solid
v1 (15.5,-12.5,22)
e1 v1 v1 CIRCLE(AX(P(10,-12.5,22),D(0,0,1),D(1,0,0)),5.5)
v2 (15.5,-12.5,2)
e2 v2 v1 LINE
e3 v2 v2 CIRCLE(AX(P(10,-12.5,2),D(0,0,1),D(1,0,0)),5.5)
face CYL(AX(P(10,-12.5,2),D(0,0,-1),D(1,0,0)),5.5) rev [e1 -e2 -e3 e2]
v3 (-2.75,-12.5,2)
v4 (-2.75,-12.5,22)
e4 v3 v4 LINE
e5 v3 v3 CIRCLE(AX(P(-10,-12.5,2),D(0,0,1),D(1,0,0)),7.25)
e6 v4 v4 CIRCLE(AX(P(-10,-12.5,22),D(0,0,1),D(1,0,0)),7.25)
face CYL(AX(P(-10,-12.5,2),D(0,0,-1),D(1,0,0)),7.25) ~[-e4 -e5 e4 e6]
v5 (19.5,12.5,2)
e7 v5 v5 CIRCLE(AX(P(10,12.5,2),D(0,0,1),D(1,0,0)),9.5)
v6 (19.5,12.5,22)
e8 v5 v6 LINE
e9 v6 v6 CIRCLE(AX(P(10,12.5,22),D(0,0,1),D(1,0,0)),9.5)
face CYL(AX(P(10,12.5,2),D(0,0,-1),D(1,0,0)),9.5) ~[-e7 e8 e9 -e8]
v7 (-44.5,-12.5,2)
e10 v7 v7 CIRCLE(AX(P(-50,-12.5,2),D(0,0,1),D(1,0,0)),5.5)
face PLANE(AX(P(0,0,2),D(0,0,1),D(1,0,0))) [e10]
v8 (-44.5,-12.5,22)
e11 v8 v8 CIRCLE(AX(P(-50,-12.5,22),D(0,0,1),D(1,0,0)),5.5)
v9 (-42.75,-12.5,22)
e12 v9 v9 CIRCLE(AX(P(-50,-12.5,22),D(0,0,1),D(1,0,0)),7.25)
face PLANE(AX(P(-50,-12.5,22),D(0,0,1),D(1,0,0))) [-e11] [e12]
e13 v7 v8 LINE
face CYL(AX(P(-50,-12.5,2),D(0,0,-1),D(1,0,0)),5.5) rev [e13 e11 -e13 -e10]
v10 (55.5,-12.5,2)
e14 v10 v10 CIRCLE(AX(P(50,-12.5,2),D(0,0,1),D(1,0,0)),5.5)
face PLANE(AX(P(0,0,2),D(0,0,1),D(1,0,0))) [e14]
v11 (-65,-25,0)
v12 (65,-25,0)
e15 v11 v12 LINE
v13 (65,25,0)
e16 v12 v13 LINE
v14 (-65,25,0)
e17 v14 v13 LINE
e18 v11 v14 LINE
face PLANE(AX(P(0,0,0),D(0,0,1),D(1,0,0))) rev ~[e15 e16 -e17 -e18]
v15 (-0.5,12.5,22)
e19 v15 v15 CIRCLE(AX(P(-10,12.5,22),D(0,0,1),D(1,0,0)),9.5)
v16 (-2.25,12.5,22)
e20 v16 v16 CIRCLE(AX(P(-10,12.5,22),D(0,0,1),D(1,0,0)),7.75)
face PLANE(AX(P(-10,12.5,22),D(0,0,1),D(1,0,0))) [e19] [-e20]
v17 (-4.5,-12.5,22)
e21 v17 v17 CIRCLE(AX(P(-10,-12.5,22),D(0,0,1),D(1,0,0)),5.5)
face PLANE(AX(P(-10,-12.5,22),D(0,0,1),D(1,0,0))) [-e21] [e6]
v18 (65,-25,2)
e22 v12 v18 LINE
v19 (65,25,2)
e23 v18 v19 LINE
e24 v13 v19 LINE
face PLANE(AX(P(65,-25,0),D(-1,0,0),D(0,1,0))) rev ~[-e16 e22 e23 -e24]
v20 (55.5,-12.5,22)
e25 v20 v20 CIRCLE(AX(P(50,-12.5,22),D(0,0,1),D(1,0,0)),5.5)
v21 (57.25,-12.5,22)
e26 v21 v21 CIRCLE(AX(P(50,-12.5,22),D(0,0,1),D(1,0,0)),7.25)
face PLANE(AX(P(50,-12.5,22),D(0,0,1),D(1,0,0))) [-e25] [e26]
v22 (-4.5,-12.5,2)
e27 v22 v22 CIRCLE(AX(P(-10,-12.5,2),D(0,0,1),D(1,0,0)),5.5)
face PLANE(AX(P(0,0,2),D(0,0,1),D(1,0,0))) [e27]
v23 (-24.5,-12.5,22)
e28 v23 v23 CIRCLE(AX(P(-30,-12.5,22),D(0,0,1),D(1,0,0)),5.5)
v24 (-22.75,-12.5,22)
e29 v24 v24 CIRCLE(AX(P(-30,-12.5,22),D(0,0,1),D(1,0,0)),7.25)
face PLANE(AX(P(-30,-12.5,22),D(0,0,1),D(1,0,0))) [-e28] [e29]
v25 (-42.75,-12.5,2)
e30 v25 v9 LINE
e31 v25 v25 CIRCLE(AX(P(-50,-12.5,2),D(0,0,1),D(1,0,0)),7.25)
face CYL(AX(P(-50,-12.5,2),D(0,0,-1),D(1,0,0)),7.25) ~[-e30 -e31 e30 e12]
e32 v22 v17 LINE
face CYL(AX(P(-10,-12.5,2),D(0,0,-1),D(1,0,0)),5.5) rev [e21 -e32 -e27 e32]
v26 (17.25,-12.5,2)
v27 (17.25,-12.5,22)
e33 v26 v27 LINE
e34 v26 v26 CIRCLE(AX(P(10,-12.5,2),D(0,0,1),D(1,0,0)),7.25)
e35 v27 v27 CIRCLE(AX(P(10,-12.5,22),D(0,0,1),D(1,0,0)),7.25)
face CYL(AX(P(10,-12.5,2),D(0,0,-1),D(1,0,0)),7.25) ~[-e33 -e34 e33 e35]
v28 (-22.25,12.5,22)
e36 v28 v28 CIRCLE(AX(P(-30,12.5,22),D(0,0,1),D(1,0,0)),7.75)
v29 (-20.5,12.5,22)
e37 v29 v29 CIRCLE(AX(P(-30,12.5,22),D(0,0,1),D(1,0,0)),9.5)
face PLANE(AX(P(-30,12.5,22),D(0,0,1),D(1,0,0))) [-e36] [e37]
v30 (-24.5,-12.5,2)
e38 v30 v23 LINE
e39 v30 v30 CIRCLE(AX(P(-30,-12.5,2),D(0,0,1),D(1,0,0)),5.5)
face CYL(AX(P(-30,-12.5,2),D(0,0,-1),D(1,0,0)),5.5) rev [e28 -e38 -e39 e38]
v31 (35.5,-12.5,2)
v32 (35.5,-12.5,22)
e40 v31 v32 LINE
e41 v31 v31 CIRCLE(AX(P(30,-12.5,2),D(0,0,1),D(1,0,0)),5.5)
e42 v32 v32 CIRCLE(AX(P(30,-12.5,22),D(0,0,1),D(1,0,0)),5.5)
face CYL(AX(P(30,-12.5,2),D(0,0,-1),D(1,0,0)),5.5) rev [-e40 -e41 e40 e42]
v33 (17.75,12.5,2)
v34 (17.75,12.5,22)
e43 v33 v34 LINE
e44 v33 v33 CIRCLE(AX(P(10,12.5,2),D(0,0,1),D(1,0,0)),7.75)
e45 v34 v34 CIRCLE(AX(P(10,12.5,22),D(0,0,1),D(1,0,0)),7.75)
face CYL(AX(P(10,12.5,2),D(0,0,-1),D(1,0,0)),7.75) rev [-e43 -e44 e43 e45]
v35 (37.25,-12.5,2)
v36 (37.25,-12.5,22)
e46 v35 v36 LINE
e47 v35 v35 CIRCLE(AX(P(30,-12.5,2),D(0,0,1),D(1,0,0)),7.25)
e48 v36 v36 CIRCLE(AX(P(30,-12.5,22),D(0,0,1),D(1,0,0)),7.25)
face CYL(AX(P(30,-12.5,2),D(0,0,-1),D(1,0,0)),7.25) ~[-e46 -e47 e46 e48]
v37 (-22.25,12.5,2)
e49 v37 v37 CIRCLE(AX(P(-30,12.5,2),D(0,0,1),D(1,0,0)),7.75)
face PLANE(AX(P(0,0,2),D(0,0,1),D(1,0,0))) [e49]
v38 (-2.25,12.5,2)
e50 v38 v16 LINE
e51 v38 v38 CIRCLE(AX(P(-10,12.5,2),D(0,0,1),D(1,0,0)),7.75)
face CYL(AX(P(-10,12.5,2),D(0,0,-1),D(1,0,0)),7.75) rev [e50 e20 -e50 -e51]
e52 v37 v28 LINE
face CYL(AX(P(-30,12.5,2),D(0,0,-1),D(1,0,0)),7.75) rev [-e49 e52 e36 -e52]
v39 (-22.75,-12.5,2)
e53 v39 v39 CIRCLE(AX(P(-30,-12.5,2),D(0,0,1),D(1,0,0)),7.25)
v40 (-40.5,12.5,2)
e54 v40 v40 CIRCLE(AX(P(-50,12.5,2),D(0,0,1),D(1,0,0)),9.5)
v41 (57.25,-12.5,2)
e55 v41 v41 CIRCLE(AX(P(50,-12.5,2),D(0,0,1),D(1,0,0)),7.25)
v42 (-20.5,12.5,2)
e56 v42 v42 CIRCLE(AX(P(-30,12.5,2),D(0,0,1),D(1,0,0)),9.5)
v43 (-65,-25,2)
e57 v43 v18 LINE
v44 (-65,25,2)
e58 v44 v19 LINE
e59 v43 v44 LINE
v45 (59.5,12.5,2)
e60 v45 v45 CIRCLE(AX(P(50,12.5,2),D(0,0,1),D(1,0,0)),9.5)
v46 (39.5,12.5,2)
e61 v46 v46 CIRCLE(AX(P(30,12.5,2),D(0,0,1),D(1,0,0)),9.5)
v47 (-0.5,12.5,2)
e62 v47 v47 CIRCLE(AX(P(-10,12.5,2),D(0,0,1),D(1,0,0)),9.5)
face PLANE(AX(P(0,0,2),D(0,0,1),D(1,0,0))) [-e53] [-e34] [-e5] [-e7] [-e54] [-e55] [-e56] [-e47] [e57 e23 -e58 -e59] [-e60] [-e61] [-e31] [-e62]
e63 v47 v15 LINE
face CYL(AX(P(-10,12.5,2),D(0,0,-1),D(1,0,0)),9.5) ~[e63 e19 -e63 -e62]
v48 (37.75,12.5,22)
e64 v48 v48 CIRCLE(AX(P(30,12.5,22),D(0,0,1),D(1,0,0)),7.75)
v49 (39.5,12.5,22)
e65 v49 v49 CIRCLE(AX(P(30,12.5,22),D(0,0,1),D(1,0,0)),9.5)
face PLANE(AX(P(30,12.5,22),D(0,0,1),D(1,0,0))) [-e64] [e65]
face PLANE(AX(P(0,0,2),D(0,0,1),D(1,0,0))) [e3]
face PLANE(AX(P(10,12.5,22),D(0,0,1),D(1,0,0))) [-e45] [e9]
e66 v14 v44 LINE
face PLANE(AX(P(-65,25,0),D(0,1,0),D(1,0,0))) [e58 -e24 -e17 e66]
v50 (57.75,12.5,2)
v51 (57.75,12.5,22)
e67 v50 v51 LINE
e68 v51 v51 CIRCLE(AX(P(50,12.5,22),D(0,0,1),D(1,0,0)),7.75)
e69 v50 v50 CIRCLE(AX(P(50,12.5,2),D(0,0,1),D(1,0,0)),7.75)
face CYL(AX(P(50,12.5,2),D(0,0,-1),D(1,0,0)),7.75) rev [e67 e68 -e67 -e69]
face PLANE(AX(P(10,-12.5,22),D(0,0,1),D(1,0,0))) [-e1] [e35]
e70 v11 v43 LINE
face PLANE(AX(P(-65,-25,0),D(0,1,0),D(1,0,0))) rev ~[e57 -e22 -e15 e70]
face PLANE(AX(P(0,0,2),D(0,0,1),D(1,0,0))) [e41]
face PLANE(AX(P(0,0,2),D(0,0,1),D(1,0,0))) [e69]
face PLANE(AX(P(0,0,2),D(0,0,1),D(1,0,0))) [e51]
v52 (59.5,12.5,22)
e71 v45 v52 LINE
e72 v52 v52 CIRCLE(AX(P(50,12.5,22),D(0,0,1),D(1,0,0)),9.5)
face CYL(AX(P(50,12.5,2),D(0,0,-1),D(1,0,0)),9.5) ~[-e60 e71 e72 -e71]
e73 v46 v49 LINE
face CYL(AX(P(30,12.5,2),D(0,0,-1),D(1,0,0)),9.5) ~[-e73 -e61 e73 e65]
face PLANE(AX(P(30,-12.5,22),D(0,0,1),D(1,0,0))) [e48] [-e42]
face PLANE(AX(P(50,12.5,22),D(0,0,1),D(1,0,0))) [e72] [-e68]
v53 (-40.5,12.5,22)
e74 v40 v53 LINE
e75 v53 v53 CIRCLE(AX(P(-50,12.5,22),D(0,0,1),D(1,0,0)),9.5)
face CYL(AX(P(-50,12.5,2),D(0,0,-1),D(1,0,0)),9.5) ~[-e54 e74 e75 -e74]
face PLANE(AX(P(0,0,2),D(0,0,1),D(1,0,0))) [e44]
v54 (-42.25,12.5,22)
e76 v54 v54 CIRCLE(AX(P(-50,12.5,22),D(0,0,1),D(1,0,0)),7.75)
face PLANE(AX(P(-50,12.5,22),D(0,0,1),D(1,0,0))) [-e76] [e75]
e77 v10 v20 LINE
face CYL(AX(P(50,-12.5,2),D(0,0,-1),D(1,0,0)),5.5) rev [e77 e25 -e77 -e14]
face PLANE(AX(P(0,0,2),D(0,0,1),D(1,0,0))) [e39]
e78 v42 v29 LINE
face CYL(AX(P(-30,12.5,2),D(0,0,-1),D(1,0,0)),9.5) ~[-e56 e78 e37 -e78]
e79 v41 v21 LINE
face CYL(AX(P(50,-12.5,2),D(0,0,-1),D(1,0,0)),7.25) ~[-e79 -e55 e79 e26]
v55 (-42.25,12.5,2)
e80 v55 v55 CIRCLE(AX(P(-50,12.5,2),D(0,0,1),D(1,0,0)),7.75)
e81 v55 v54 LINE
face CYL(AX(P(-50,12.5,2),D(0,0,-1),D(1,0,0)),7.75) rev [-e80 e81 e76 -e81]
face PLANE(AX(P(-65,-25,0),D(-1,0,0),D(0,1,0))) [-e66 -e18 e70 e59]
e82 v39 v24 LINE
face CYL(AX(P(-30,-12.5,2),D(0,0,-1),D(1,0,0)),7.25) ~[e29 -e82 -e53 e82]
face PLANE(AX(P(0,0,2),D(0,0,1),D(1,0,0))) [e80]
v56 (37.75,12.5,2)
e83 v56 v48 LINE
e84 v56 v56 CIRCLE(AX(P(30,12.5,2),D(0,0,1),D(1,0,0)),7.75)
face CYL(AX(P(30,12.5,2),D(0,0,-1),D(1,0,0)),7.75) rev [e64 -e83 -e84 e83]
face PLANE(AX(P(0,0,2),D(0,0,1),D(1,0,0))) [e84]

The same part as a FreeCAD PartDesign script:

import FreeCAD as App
import Part
import Sketcher
from FreeCAD import Vector

doc = App.newDocument("Part")
body = doc.addObject("PartDesign::Body", "Body")

# Sketch on XY plane
sketch1 = body.newObject("Sketcher::SketchObject", "Sketch")
sketch1.AttachmentSupport = (doc.getObject("XY_Plane"), [""])
sketch1.MapMode = "FlatFace"
sketch1.addGeometry([
    Part.LineSegment(Vector(-65, 25, 0), Vector(-65, -25, 0)),
    Part.LineSegment(Vector(-65, -25, 0), Vector(65, -25, 0)),
    Part.LineSegment(Vector(65, -25, 0), Vector(65, 25, 0)),
    Part.LineSegment(Vector(65, 25, 0), Vector(-65, 25, 0)),
], False)
sketch1.addConstraint([
    Sketcher.Constraint("Coincident", 0, 2, 1, 1),
    Sketcher.Constraint("Coincident", 1, 2, 2, 1),
    Sketcher.Constraint("Coincident", 2, 2, 3, 1),
    Sketcher.Constraint("Coincident", 3, 2, 0, 1),
    Sketcher.Constraint("Vertical", 0),
    Sketcher.Constraint("Horizontal", 1),
    Sketcher.Constraint("Vertical", 2),
    Sketcher.Constraint("Horizontal", 3),
    Sketcher.Constraint("Symmetric", 0, 2, 2, 2, -1, 1),
    Sketcher.Constraint("DistanceX", 1, 1, 1, 2, 130.0),
    Sketcher.Constraint("DistanceY", 0, 2, 0, 1, 50.0),
])
pad1 = body.newObject("PartDesign::Pad", "Pad")
pad1.Profile = sketch1
pad1.Length = 2

# Sketch on XY plane
sketch2 = body.newObject("Sketcher::SketchObject", "Sketch001")
sketch2.AttachmentSupport = (doc.getObject("XY_Plane"), [""])
sketch2.MapMode = "FlatFace"
sketch2.AttachmentOffset = App.Placement(Vector(0, 0, 2), App.Rotation())
sketch2.addGeometry([
    Part.Circle(Vector(-50, 12.5, 0), Vector(0, 0, 1), 9.5),  # 0
    Part.Circle(Vector(-50, 12.5, 0), Vector(0, 0, 1), 7.75),  # 1
    Part.Circle(Vector(-30, 12.5, 0), Vector(0, 0, 1), 9.5),  # 2
    Part.Circle(Vector(-30, 12.5, 0), Vector(0, 0, 1), 7.75),  # 3
    Part.Circle(Vector(-10, 12.5, 0), Vector(0, 0, 1), 9.5),  # 4
    Part.Circle(Vector(-10, 12.5, 0), Vector(0, 0, 1), 7.75),  # 5
    Part.Circle(Vector(10, 12.5, 0), Vector(0, 0, 1), 9.5),  # 6
    Part.Circle(Vector(10, 12.5, 0), Vector(0, 0, 1), 7.75),  # 7
    Part.Circle(Vector(30, 12.5, 0), Vector(0, 0, 1), 9.5),  # 8
    Part.Circle(Vector(30, 12.5, 0), Vector(0, 0, 1), 7.75),  # 9
    Part.Circle(Vector(50, 12.5, 0), Vector(0, 0, 1), 9.5),  # 10
    Part.Circle(Vector(50, 12.5, 0), Vector(0, 0, 1), 7.75),  # 11
    Part.Circle(Vector(-50, -12.5, 0), Vector(0, 0, 1), 7.25),  # 12
    Part.Circle(Vector(-50, -12.5, 0), Vector(0, 0, 1), 5.5),  # 13
    Part.Circle(Vector(-30, -12.5, 0), Vector(0, 0, 1), 7.25),  # 14
    Part.Circle(Vector(-30, -12.5, 0), Vector(0, 0, 1), 5.5),  # 15
    Part.Circle(Vector(-10, -12.5, 0), Vector(0, 0, 1), 7.25),  # 16
    Part.Circle(Vector(-10, -12.5, 0), Vector(0, 0, 1), 5.5),  # 17
    Part.Circle(Vector(10, -12.5, 0), Vector(0, 0, 1), 7.25),  # 18
    Part.Circle(Vector(10, -12.5, 0), Vector(0, 0, 1), 5.5),  # 19
    Part.Circle(Vector(30, -12.5, 0), Vector(0, 0, 1), 7.25),  # 20
    Part.Circle(Vector(30, -12.5, 0), Vector(0, 0, 1), 5.5),  # 21
    Part.Circle(Vector(50, -12.5, 0), Vector(0, 0, 1), 7.25),  # 22
    Part.Circle(Vector(50, -12.5, 0), Vector(0, 0, 1), 5.5),  # 23
], False)
sketch2.addConstraint([
    Sketcher.Constraint("Coincident", 1, 3, 0, 3),
    Sketcher.Constraint("Coincident", 3, 3, 2, 3),
    Sketcher.Constraint("Coincident", 5, 3, 4, 3),
    Sketcher.Constraint("Coincident", 7, 3, 6, 3),
    Sketcher.Constraint("Coincident", 9, 3, 8, 3),
    Sketcher.Constraint("Coincident", 11, 3, 10, 3),
    Sketcher.Constraint("Coincident", 13, 3, 12, 3),
    Sketcher.Constraint("Coincident", 15, 3, 14, 3),
    Sketcher.Constraint("Coincident", 17, 3, 16, 3),
    Sketcher.Constraint("Coincident", 19, 3, 18, 3),
    Sketcher.Constraint("Coincident", 21, 3, 20, 3),
    Sketcher.Constraint("Coincident", 23, 3, 22, 3),
    Sketcher.Constraint("Equal", 0, 2),
    Sketcher.Constraint("Equal", 1, 3),
    Sketcher.Constraint("Equal", 2, 4),
    Sketcher.Constraint("Equal", 3, 5),
    Sketcher.Constraint("Equal", 4, 6),
    Sketcher.Constraint("Equal", 5, 7),
    Sketcher.Constraint("Equal", 6, 8),
    Sketcher.Constraint("Equal", 7, 9),
    Sketcher.Constraint("Equal", 8, 10),
    Sketcher.Constraint("Equal", 9, 11),
    Sketcher.Constraint("Equal", 12, 14),
    Sketcher.Constraint("Equal", 13, 15),
    Sketcher.Constraint("Equal", 14, 16),
    Sketcher.Constraint("Equal", 15, 17),
    Sketcher.Constraint("Equal", 16, 18),
    Sketcher.Constraint("Equal", 17, 19),
    Sketcher.Constraint("Equal", 18, 20),
    Sketcher.Constraint("Equal", 19, 21),
    Sketcher.Constraint("Equal", 20, 22),
    Sketcher.Constraint("Equal", 21, 23),
    Sketcher.Constraint("Symmetric", 10, 3, 12, 3, -1, 1),
    Sketcher.Constraint("Symmetric", 8, 3, 14, 3, -1, 1),
    Sketcher.Constraint("Symmetric", 6, 3, 16, 3, -1, 1),
    Sketcher.Constraint("Symmetric", 4, 3, 18, 3, -1, 1),
    Sketcher.Constraint("Symmetric", 2, 3, 20, 3, -1, 1),
    Sketcher.Constraint("Symmetric", 0, 3, 22, 3, -1, 1),
    Sketcher.Constraint("Symmetric", 4, 3, 6, 3, -2),
    Sketcher.Constraint("Symmetric", 2, 3, 8, 3, -2),
    Sketcher.Constraint("Symmetric", 0, 3, 10, 3, -2),
    Sketcher.Constraint("Horizontal", 1, 3, 2, 3),
    Sketcher.Constraint("Horizontal", 3, 3, 4, 3),
    Sketcher.Constraint("Diameter", 0, 19.0),
    Sketcher.Constraint("Diameter", 13, 11.0),
    Sketcher.Constraint("Diameter", 1, 15.5),
    Sketcher.Constraint("Diameter", 12, 14.5),
    Sketcher.Constraint("DistanceX", 0, 3, -1, 1, 50.0),
    Sketcher.Constraint("DistanceX", 2, 3, -1, 1, 30.0),
    Sketcher.Constraint("DistanceX", 4, 3, -1, 1, 10.0),
    Sketcher.Constraint("DistanceY", 12, 3, 0, 3, 25.0),
])
pad2 = body.newObject("PartDesign::Pad", "Pad001")
pad2.Profile = sketch2
pad2.Length = 20

doc.recompute()
